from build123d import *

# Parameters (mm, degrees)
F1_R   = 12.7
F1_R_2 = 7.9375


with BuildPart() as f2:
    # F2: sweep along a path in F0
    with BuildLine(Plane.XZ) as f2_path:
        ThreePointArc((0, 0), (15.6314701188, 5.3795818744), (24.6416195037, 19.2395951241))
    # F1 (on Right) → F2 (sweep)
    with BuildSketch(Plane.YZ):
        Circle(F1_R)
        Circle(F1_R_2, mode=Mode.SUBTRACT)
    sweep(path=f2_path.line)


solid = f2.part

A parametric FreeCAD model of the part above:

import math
import FreeCAD as App
import Part
import Sketcher

V = App.Vector
Q = App.Units.Quantity

doc = App.newDocument("Part")
body = doc.addObject("PartDesign::Body", "Body")

# Sketch on YZ plane
sketch1 = doc.addObject("Sketcher::SketchObject", "Sketch")
body.addObject(sketch1)
sketch1.AttachmentSupport = (doc.YZ_Plane, [""])
sketch1.MapMode = "FlatFace"
sketch1.addGeometry(Part.Circle(V(0, 0, 0), V(0, 0, 1), 13), False)
sketch1.addGeometry(Part.Circle(V(0, 0, 0), V(0, 0, 1), 8), False)
sketch1.addConstraint(Sketcher.Constraint("Coincident", 0, 3, -1, 1))
sketch1.addConstraint(Sketcher.Constraint("Coincident", 1, 3, -1, 1))
sketch1.addConstraint(Sketcher.Constraint("Diameter", 0, Q("1 in")))
sketch1.addConstraint(Sketcher.Constraint("Diameter", 1, Q("0.625 in")))

# Sketch on XZ plane
sketch2 = doc.addObject("Sketcher::SketchObject", "Sketch001")
body.addObject(sketch2)
sketch2.AttachmentSupport = (doc.XZ_Plane, [""])
sketch2.MapMode = "FlatFace"
sketch2.addGeometry(Part.ArcOfCircle(Part.Circle(V(0, 25, 0), V(0, 0, 1), 25), math.radians(-90), math.radians(-14)), False)
sketch2.addConstraint(Sketcher.Constraint("Coincident", 0, 1, -1, 1))
sketch2.addConstraint(Sketcher.Constraint("PointOnObject", 0, 3, -2))
sketch2.addConstraint(Sketcher.Constraint("Radius", 0, Q("1 in")))
sketch2.addConstraint(Sketcher.Constraint("DistanceX", -1, 1, 0, 2, Q("24.64162 mm")))
doc.recompute()

additivepipe = doc.addObject("PartDesign::AdditivePipe", "AdditivePipe")
body.addObject(additivepipe)
additivepipe.Profile = sketch1
additivepipe.Spine = (sketch2, ["Edge1"])

doc.recompute()
